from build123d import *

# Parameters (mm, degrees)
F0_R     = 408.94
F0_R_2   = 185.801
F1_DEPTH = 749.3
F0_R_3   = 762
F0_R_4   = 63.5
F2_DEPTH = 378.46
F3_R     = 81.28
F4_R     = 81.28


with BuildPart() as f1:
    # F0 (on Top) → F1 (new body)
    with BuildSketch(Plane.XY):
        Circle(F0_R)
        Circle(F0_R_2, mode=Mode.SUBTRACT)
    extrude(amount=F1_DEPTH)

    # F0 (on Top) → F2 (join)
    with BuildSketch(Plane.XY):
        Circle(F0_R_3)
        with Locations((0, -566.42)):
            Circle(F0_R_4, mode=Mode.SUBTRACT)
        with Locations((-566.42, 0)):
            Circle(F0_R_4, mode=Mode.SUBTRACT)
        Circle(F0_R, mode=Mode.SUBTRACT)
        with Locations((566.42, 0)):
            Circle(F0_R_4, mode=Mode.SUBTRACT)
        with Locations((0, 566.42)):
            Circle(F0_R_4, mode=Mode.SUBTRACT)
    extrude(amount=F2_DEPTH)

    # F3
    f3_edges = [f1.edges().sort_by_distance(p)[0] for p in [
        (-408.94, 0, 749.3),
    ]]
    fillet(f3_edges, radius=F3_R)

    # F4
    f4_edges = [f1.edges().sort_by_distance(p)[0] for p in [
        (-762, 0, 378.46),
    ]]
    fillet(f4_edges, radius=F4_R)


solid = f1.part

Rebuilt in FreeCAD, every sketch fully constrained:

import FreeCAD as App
import Part
import Sketcher

V = App.Vector
Q = App.Units.Quantity


def edges_at(feature, points):
    """Names of the edges that pass closest to the given points."""
    edges = feature.Shape.Edges
    near = lambda p: min(range(len(edges)), key=lambda i: edges[i].distToShape(Part.Vertex(*p))[0])
    return sorted({f"Edge{near(p) + 1}" for p in points})

doc = App.newDocument("Part")
body = doc.addObject("PartDesign::Body", "Body")

# Sketch on XY plane
sketch1 = body.newObject("Sketcher::SketchObject", "Sketch")
sketch1.AttachmentSupport = (doc.getObject("XY_Plane"), [""])
sketch1.MapMode = "FlatFace"
sketch1.addGeometry(Part.Circle(V(0, 0, 0), V(0, 0, 1), 409), False)
sketch1.addGeometry(Part.Circle(V(0, 0, 0), V(0, 0, 1), 186), False)
sketch1.addConstraint(Sketcher.Constraint("Coincident", 0, 3, -1, 1))
sketch1.addConstraint(Sketcher.Constraint("Coincident", 1, 3, -1, 1))
sketch1.addConstraint(Sketcher.Constraint("Diameter", 0, Q("32.2 in")))
sketch1.addConstraint(Sketcher.Constraint("Diameter", 1, Q("14.63 in")))
pad1 = body.newObject("PartDesign::Pad", "Pad")
pad1.Profile = sketch1
pad1.Length = Q("29.5 in")

# Sketch on XY plane
sketch2 = body.newObject("Sketcher::SketchObject", "Sketch001")
sketch2.AttachmentSupport = (doc.getObject("XY_Plane"), [""])
sketch2.MapMode = "FlatFace"
sketch2.addGeometry(Part.Circle(V(0, 0, 0), V(0, 0, 1), 762), False)
sketch2.addGeometry(Part.Circle(V(0, -566, 0), V(0, 0, 1), 64), False)
sketch2.addGeometry(Part.Circle(V(-566, 0, 0), V(0, 0, 1), 64), False)
sketch2.addGeometry(Part.Circle(V(0, 0, 0), V(0, 0, 1), 409), False)
sketch2.addGeometry(Part.Circle(V(566, 0, 0), V(0, 0, 1), 64), False)
sketch2.addGeometry(Part.Circle(V(0, 566, 0), V(0, 0, 1), 64), False)
sketch2.addConstraint(Sketcher.Constraint("Coincident", 0, 3, -1, 1))
sketch2.addConstraint(Sketcher.Constraint("Coincident", 3, 3, -1, 1))
sketch2.addConstraint(Sketcher.Constraint("Equal", 1, 2))
sketch2.addConstraint(Sketcher.Constraint("Equal", 2, 4))
sketch2.addConstraint(Sketcher.Constraint("Equal", 4, 5))
sketch2.addConstraint(Sketcher.Constraint("Symmetric", 2, 3, 4, 3, -1, 1))
sketch2.addConstraint(Sketcher.Constraint("Symmetric", 1, 3, 5, 3, -1, 1))
sketch2.addConstraint(Sketcher.Constraint("PointOnObject", 1, 3, -2))
sketch2.addConstraint(Sketcher.Constraint("PointOnObject", 2, 3, -1))
sketch2.addConstraint(Sketcher.Constraint("Diameter", 0, Q("60 in")))
sketch2.addConstraint(Sketcher.Constraint("Diameter", 1, Q("5 in")))
sketch2.addConstraint(Sketcher.Constraint("Diameter", 3, Q("32.2 in")))
sketch2.addConstraint(Sketcher.Constraint("DistanceY", 1, 3, -1, 1, Q("22.3 in")))
sketch2.addConstraint(Sketcher.Constraint("DistanceX", 2, 3, -1, 1, Q("22.3 in")))
pad2 = body.newObject("PartDesign::Pad", "Pad001")
pad2.Profile = sketch2
pad2.Length = Q("14.9 in")
doc.recompute()

fillet = body.newObject("PartDesign::Fillet", "Fillet")
fillet.Base = (pad2, edges_at(pad2, [(-408.94, 0, 749.3)]))
fillet.Radius = Q("3.2 in")
doc.recompute()

fillet2 = body.newObject("PartDesign::Fillet", "Fillet001")
fillet2.Base = (fillet, edges_at(fillet, [(-762, 0, 378.46)]))
fillet2.Radius = Q("3.2 in")

doc.recompute()
